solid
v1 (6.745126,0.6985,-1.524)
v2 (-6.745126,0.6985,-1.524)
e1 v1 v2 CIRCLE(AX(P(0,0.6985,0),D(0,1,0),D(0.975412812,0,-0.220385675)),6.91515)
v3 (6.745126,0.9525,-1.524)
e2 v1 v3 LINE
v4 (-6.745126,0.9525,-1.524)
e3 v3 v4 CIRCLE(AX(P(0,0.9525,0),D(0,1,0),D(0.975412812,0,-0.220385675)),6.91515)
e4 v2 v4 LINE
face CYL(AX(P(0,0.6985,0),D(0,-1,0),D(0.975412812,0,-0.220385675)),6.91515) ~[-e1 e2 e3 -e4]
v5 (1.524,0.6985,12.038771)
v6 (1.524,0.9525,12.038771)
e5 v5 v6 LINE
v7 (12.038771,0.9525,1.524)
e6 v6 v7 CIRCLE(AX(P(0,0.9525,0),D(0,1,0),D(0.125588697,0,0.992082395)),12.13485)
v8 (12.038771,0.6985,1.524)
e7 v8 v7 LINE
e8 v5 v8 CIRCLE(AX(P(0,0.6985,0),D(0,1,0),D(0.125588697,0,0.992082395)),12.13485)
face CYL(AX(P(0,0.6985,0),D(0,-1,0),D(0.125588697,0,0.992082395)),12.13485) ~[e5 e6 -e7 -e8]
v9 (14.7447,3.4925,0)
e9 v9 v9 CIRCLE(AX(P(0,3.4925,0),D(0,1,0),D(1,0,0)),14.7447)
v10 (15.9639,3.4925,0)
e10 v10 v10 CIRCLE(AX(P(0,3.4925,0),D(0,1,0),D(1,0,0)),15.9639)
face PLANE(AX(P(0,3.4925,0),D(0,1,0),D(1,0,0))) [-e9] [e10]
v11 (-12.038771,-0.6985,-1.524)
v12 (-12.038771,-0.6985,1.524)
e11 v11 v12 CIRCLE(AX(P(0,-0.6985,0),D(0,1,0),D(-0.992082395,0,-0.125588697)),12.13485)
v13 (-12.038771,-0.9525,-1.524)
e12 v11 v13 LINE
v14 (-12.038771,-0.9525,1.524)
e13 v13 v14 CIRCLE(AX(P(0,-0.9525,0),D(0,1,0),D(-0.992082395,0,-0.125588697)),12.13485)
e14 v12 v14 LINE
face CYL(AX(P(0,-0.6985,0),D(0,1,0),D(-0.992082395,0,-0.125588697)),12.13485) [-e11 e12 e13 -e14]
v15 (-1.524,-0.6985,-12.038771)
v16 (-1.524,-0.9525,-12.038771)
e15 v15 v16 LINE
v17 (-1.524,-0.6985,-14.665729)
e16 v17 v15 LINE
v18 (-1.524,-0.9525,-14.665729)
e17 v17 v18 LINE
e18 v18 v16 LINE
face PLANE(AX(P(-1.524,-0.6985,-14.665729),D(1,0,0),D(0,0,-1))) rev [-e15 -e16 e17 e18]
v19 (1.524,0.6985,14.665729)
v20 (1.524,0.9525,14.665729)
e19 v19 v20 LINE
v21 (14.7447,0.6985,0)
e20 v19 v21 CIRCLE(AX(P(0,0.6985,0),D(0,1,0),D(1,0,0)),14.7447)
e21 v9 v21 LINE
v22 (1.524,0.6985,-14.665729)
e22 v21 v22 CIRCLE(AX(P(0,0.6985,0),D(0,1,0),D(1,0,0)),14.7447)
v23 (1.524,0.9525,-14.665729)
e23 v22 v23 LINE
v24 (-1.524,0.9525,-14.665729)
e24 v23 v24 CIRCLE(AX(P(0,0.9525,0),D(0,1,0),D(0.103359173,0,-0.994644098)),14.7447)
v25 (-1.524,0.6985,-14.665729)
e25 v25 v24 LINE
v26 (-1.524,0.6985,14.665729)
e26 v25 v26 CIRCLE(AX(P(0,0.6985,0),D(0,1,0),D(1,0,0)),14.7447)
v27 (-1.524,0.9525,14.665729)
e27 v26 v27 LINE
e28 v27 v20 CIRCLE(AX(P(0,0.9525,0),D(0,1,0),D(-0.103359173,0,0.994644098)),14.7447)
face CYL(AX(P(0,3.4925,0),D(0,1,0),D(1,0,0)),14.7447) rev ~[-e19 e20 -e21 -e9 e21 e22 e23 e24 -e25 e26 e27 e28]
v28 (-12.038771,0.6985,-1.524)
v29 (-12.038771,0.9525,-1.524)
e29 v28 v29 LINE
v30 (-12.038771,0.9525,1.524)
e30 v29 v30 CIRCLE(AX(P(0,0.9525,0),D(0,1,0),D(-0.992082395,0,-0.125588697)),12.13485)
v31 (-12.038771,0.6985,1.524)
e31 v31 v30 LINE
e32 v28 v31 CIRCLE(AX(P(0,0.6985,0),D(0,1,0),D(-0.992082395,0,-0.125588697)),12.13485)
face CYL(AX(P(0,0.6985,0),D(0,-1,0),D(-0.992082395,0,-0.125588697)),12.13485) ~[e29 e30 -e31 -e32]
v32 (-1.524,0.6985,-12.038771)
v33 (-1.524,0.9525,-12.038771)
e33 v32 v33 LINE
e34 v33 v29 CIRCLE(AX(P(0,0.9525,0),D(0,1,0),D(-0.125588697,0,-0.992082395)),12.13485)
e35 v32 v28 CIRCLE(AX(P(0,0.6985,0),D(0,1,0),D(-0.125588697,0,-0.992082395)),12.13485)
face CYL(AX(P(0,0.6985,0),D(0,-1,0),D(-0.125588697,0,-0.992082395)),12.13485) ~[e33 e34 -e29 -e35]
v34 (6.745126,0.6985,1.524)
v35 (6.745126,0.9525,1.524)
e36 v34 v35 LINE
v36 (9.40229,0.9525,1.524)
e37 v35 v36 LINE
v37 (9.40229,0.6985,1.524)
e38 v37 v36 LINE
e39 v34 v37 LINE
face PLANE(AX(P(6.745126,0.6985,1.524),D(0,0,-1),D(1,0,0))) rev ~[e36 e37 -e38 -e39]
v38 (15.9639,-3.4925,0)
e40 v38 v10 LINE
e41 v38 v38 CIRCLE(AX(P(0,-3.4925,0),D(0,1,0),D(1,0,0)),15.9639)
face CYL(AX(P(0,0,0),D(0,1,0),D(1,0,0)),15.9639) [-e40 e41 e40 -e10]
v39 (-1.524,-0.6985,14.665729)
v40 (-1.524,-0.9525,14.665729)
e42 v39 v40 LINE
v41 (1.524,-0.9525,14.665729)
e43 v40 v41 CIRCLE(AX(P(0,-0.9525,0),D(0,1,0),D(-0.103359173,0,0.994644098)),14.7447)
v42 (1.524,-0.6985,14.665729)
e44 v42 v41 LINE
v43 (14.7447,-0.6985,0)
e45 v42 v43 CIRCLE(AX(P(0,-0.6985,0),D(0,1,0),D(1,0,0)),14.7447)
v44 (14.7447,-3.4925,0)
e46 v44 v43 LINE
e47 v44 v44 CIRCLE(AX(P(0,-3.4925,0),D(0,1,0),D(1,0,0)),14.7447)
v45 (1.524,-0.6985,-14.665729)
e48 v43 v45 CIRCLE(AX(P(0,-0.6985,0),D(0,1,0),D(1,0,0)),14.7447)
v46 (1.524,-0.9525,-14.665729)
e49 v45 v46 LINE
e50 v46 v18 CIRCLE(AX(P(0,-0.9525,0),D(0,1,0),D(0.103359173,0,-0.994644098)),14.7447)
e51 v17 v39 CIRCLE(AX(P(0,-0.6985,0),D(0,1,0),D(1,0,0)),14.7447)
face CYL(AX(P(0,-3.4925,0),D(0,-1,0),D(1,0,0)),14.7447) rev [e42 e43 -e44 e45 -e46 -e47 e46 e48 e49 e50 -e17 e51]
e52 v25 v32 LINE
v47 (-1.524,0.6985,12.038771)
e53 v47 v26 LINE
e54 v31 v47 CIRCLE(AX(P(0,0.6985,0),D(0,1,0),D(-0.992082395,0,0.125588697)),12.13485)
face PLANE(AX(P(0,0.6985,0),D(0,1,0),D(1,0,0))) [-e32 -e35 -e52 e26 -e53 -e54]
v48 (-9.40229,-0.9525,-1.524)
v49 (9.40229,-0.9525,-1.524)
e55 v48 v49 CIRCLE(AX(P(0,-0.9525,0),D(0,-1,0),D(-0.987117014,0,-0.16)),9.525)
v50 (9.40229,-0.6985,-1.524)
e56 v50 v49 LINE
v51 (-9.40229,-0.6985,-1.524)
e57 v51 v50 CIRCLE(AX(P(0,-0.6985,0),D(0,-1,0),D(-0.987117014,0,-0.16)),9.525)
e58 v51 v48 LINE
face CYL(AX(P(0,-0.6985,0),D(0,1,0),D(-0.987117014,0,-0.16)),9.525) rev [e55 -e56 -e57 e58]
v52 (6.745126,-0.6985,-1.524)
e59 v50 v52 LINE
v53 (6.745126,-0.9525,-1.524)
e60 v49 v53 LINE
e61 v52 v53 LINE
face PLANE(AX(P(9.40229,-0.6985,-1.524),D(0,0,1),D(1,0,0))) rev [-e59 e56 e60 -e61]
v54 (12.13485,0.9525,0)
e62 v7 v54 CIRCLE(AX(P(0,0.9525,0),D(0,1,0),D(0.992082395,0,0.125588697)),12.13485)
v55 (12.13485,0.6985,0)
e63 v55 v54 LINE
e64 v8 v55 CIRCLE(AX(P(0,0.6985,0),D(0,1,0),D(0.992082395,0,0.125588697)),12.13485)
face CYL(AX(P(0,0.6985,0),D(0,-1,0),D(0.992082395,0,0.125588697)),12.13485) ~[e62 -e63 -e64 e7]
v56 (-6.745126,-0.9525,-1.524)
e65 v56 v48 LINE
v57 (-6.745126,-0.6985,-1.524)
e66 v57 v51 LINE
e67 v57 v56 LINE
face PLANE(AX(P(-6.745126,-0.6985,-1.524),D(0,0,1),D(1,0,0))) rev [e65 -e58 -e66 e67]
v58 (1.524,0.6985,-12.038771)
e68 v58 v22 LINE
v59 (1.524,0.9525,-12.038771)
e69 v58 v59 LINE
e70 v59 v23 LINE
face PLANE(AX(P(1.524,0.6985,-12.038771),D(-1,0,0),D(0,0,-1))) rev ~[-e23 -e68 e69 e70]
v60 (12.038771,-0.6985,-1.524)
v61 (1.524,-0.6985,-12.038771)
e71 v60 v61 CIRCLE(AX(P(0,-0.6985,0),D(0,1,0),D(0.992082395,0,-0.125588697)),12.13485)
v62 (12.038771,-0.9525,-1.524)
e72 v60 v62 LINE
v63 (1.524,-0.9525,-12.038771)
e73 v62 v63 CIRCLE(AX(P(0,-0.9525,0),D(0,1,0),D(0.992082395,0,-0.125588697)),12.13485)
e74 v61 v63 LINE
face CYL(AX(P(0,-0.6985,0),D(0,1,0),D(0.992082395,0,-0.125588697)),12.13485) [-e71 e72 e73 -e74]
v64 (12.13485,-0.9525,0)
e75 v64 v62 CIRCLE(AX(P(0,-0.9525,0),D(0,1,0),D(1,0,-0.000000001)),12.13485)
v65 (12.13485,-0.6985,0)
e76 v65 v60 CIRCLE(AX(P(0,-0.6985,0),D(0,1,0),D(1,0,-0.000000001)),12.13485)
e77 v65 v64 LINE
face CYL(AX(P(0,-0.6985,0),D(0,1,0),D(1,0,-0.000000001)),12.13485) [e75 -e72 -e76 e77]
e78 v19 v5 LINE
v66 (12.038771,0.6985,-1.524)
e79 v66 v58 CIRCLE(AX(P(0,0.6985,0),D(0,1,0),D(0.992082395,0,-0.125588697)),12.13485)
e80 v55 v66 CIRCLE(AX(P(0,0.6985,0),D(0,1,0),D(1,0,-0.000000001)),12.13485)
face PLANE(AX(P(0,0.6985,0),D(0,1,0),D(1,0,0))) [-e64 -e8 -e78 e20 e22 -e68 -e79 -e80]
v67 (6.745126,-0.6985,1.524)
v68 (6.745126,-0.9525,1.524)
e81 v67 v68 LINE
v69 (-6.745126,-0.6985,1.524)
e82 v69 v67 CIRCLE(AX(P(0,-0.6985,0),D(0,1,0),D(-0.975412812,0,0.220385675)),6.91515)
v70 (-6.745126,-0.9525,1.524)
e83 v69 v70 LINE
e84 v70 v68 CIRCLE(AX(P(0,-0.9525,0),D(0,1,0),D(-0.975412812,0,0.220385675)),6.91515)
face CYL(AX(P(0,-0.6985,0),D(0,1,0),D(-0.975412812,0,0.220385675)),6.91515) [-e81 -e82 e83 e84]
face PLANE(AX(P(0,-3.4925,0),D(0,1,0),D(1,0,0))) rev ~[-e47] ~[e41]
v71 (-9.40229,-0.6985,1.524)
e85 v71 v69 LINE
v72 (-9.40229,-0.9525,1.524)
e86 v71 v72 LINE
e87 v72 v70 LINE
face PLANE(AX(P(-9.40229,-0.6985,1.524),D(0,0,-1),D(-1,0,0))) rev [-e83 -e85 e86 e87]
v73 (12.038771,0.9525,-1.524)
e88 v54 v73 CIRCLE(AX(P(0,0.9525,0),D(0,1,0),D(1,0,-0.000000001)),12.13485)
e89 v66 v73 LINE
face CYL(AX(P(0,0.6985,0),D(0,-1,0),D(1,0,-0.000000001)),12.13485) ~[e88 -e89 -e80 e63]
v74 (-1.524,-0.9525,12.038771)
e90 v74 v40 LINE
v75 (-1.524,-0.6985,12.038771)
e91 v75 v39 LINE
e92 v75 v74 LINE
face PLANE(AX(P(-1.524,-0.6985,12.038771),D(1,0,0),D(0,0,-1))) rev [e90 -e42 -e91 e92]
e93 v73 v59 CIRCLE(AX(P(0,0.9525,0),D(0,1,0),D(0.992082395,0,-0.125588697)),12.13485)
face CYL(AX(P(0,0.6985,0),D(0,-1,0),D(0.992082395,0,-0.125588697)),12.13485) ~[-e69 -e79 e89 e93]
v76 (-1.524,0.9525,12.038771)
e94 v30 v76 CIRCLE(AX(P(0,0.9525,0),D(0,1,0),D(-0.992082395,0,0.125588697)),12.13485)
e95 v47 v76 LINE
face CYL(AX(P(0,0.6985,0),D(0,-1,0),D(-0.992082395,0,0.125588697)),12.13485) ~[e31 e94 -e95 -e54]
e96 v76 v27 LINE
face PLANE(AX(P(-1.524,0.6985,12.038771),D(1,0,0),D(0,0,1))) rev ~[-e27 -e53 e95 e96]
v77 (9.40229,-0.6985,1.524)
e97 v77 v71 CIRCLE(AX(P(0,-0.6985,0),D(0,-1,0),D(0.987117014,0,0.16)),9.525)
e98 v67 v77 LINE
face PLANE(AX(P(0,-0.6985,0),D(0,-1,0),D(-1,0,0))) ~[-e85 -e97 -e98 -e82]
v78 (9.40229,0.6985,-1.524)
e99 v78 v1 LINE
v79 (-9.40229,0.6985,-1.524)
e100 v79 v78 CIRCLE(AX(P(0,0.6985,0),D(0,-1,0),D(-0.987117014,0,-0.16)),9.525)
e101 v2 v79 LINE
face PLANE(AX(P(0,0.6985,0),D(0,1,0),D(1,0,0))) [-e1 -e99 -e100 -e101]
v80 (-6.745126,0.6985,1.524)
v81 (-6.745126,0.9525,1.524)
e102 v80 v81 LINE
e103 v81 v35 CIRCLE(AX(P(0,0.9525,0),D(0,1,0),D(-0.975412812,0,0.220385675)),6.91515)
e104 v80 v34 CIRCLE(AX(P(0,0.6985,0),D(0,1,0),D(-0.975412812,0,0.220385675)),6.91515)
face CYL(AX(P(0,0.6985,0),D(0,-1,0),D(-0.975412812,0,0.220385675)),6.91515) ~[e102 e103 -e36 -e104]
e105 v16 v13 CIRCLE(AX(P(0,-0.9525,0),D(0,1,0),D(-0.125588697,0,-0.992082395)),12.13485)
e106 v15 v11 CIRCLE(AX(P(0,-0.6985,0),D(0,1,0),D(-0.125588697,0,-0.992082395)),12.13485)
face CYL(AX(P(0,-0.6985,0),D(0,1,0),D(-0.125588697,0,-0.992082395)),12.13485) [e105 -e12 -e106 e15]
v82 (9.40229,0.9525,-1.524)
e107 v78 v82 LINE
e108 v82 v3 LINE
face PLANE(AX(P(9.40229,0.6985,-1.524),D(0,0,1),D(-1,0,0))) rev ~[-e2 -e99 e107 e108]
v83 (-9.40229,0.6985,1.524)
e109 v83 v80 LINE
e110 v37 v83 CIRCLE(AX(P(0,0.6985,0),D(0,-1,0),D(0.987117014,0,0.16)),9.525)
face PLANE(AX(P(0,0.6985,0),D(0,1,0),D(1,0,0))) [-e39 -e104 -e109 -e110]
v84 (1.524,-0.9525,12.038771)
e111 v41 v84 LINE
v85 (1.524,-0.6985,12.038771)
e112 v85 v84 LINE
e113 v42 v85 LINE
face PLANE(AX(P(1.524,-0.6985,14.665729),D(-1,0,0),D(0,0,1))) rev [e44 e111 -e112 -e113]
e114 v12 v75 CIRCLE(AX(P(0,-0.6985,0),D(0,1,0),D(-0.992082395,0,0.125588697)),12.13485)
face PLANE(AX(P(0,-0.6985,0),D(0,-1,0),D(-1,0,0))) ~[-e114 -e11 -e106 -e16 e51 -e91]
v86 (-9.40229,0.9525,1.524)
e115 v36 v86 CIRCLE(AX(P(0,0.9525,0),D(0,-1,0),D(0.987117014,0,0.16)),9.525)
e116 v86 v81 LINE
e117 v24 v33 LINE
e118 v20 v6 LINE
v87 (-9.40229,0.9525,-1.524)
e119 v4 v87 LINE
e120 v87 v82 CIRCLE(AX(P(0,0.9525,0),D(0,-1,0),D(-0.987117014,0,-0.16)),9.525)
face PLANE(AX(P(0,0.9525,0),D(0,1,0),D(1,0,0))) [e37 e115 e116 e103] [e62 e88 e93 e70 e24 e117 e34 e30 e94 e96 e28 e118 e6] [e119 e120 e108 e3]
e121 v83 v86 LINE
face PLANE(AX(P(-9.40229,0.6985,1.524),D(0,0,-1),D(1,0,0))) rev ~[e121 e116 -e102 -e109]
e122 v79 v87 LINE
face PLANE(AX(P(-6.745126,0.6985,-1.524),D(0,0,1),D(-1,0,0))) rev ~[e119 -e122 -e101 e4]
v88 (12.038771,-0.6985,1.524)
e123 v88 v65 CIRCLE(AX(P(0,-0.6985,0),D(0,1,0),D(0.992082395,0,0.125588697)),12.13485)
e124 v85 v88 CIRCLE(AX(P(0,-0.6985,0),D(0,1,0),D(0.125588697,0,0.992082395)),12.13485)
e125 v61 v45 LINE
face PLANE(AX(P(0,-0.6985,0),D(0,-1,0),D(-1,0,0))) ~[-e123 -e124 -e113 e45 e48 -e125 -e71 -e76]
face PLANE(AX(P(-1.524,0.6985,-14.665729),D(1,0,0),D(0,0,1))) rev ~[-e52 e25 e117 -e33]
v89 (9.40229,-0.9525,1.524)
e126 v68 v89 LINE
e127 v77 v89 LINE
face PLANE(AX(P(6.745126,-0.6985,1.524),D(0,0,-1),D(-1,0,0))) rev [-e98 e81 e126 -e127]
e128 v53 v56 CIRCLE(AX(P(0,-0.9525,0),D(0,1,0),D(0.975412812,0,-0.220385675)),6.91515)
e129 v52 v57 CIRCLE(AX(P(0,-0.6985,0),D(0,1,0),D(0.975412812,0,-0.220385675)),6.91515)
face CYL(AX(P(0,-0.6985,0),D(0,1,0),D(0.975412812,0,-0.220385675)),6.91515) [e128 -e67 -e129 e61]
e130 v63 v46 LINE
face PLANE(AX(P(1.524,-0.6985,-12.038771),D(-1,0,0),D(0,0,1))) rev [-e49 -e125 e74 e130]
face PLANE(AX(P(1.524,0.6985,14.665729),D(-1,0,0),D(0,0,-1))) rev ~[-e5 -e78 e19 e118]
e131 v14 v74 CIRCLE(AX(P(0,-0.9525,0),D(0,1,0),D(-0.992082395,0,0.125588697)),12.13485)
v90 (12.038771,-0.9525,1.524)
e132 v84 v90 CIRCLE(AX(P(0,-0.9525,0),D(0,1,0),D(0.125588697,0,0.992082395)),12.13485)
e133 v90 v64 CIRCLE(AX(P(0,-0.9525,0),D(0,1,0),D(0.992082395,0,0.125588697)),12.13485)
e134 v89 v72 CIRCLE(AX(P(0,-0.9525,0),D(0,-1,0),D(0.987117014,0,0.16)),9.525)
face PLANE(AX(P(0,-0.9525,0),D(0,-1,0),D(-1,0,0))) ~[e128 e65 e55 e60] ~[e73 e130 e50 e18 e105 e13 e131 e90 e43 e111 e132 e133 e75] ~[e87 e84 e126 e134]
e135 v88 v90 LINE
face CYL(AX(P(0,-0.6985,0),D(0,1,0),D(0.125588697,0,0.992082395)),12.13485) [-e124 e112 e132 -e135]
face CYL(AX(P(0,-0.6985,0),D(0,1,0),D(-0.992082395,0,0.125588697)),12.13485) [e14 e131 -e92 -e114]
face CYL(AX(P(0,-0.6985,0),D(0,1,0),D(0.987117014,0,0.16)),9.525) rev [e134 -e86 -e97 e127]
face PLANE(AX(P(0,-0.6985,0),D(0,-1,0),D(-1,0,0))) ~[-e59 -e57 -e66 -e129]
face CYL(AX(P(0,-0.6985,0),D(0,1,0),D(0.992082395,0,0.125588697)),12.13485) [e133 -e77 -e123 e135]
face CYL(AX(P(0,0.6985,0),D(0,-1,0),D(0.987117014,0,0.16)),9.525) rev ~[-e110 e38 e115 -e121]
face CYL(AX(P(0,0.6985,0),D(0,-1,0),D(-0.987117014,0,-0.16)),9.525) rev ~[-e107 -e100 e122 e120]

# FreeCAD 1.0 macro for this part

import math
import FreeCAD as App
import Part
import Sketcher
Q = App.Units.Quantity

doc = App.newDocument("Part")
body = doc.addObject("PartDesign::Body", "Body")

sketch1 = doc.addObject("Sketcher::SketchObject", "Sketch")
body.addObject(sketch1)
sketch1.AttachmentSupport = (doc.XZ_Plane, [""])
sketch1.MapMode = "FlatFace"
sketch1.addGeometry(Part.Circle(App.Vector(0, 0, 0), App.Vector(0, 0, 1), 16), False)
sketch1.addConstraint([
    Sketcher.Constraint("Coincident", 0, 3, -1, 1),
    Sketcher.Constraint("Diameter", 0, Q("1.257 in")),
])
pad1 = doc.addObject("PartDesign::Pad", "Pad")
body.addObject(pad1)
pad1.Profile = sketch1
pad1.Length = Q("0.275 in")
pad1.Midplane = True

sketch2 = doc.addObject("Sketcher::SketchObject", "Sketch001")
body.addObject(sketch2)
sketch2.AttachmentSupport = (doc.XZ_Plane, [""])
sketch2.MapMode = "FlatFace"
sketch2.AttachmentOffset = App.Placement(App.Vector(0, 0, -0.1375 * 25.4), App.Rotation())
sketch2.addGeometry(Part.Circle(App.Vector(0, 0, 0), App.Vector(0, 0, 1), 15), False)
sketch2.addConstraint([
    Sketcher.Constraint("Coincident", 0, 3, -1, 1),
    Sketcher.Constraint("Diameter", 0, Q("1.161 in")),
])
pocket1 = doc.addObject("PartDesign::Pocket", "Pocket")
body.addObject(pocket1)
pocket1.Profile = sketch2
pocket1.Length = Q("0.11 in")
pocket1.Reversed = True

sketch3 = doc.addObject("Sketcher::SketchObject", "Sketch002")
body.addObject(sketch3)
sketch3.AttachmentSupport = (doc.XZ_Plane, [""])
sketch3.MapMode = "FlatFace"
sketch3.AttachmentOffset = App.Placement(App.Vector(0, 0, -0.0275 * 25.4), App.Rotation())
sketch3.addGeometry([
    Part.ArcOfCircle(Part.Circle(App.Vector(0, 0, 0), App.Vector(0, 0, 1), 12.1), math.radians(97), math.radians(173)),
    Part.LineSegment(App.Vector(-1.5, 12, 0), App.Vector(-1.5, 14.7, 0)),
    Part.ArcOfCircle(Part.Circle(App.Vector(0, 0, 0), App.Vector(0, 0, 1), 14.7), math.radians(84.07), math.radians(95.93)),
    Part.LineSegment(App.Vector(1.5, 14.7, 0), App.Vector(1.5, 12, 0)),
    Part.ArcOfCircle(Part.Circle(App.Vector(0, 0, 0), App.Vector(0, 0, 1), 12.1), math.radians(7), math.radians(83)),
    Part.ArcOfCircle(Part.Circle(App.Vector(0, 0, 0), App.Vector(0, 0, 1), 12.1), math.radians(0), math.radians(7.21)),
    Part.ArcOfCircle(Part.Circle(App.Vector(0, 0, 0), App.Vector(0, 0, 1), 12.1), math.radians(-7.21), math.radians(0)),
    Part.ArcOfCircle(Part.Circle(App.Vector(0, 0, 0), App.Vector(0, 0, 1), 12.1), math.radians(-83), math.radians(-7)),
    Part.LineSegment(App.Vector(1.5, -12, 0), App.Vector(1.5, -14.7, 0)),
    Part.ArcOfCircle(Part.Circle(App.Vector(0, 0, 0), App.Vector(0, 0, 1), 14.7), math.radians(-95.93), math.radians(-84.07)),
    Part.LineSegment(App.Vector(-1.5, -14.7, 0), App.Vector(-1.5, -12, 0)),
    Part.ArcOfCircle(Part.Circle(App.Vector(0, 0, 0), App.Vector(0, 0, 1), 12.1), math.radians(-173), math.radians(-97)),
    Part.ArcOfCircle(Part.Circle(App.Vector(0, 0, 0), App.Vector(0, 0, 1), 12.1), math.radians(172.79), math.radians(187.21)),
    Part.LineSegment(App.Vector(-9.4, 1.5, 0), App.Vector(-6.7, 1.5, 0)),
    Part.ArcOfCircle(Part.Circle(App.Vector(0, 0, 0), App.Vector(0, 0, 1), 6.9), math.radians(13), math.radians(167)),
    Part.LineSegment(App.Vector(6.7, 1.5, 0), App.Vector(9.4, 1.5, 0)),
    Part.ArcOfCircle(Part.Circle(App.Vector(0, 0, 0), App.Vector(0, 0, 1), 9.5), math.radians(9), math.radians(171)),
    Part.ArcOfCircle(Part.Circle(App.Vector(0, 0, 0), App.Vector(0, 0, 1), 6.9), math.radians(-167), math.radians(-13)),
    Part.LineSegment(App.Vector(-6.7, -1.5, 0), App.Vector(-9.4, -1.5, 0)),
    Part.ArcOfCircle(Part.Circle(App.Vector(0, 0, 0), App.Vector(0, 0, 1), 9.5), math.radians(-171), math.radians(-9)),
    Part.LineSegment(App.Vector(9.4, -1.5, 0), App.Vector(6.7, -1.5, 0)),
], False)
sketch3.addConstraint([
    Sketcher.Constraint("Coincident", 0, 1, 1, 1),
    Sketcher.Constraint("Coincident", 1, 2, 2, 2),
    Sketcher.Constraint("Coincident", 2, 1, 3, 1),
    Sketcher.Constraint("Coincident", 3, 2, 4, 2),
    Sketcher.Constraint("Tangent", 4, 1, 5, 2),
    Sketcher.Constraint("Tangent", 5, 1, 6, 2),
    Sketcher.Constraint("Tangent", 6, 1, 7, 2),
    Sketcher.Constraint("Coincident", 7, 1, 8, 1),
    Sketcher.Constraint("Coincident", 8, 2, 9, 2),
    Sketcher.Constraint("Coincident", 9, 1, 10, 1),
    Sketcher.Constraint("Coincident", 10, 2, 11, 2),
    Sketcher.Constraint("Tangent", 11, 1, 12, 2),
    Sketcher.Constraint("Tangent", 12, 1, 0, 2),
    Sketcher.Constraint("Coincident", 13, 2, 14, 2),
    Sketcher.Constraint("Coincident", 14, 1, 15, 1),
    Sketcher.Constraint("Coincident", 15, 2, 16, 1),
    Sketcher.Constraint("Coincident", 16, 2, 13, 1),
    Sketcher.Constraint("Coincident", 17, 1, 18, 1),
    Sketcher.Constraint("Coincident", 18, 2, 19, 1),
    Sketcher.Constraint("Coincident", 19, 2, 20, 1),
    Sketcher.Constraint("Coincident", 20, 2, 17, 2),
    Sketcher.Constraint("Vertical", 1),
    Sketcher.Constraint("Vertical", 3),
    Sketcher.Constraint("Vertical", 8),
    Sketcher.Constraint("Vertical", 10),
    Sketcher.Constraint("Horizontal", 13),
    Sketcher.Constraint("Horizontal", 15),
    Sketcher.Constraint("Horizontal", 18),
    Sketcher.Constraint("Horizontal", 20),
    Sketcher.Constraint("Coincident", 0, 3, -1, 1),
    Sketcher.Constraint("Coincident", 2, 3, -1, 1),
    Sketcher.Constraint("Coincident", 4, 3, -1, 1),
    Sketcher.Constraint("Coincident", 6, 3, -1, 1),
    Sketcher.Constraint("Coincident", 9, 3, -1, 1),
    Sketcher.Constraint("Coincident", 11, 3, -1, 1),
    Sketcher.Constraint("Coincident", 14, 3, -1, 1),
    Sketcher.Constraint("Coincident", 16, 3, -1, 1),
    Sketcher.Constraint("Coincident", 17, 3, -1, 1),
    Sketcher.Constraint("Coincident", 19, 3, -1, 1),
    Sketcher.Constraint("Equal", 0, 4),
    Sketcher.Constraint("Equal", 6, 7),
    Sketcher.Constraint("Equal", 2, 9),
    Sketcher.Constraint("Equal", 14, 17),
    Sketcher.Constraint("Equal", 16, 19),
    Sketcher.Constraint("PointOnObject", 5, 1, -1),
    Sketcher.Constraint("Horizontal", 1, 2, 2, 1),
    Sketcher.Constraint("Horizontal", 8, 2, 9, 1),
    Sketcher.Constraint("Horizontal", 6, 1, 11, 1),
    Sketcher.Constraint("Horizontal", 4, 1, 12, 1),
    Sketcher.Constraint("Horizontal", 12, 1, 13, 2),
    Sketcher.Constraint("Horizontal", 13, 2, 14, 1),
    Sketcher.Constraint("Horizontal", 11, 1, 17, 1),
    Sketcher.Constraint("Horizontal", 18, 2, 19, 2),
    Sketcher.Constraint("Vertical", 4, 1, 6, 1),
    Sketcher.Constraint("Vertical", 3, 2, 7, 1),
    Sketcher.Constraint("Radius", 16, Q("0.375 in")),
    Sketcher.Constraint("Radius", 2, Q("0.5805 in")),
    Sketcher.Constraint("DistanceX", 0, 1, -1, 1, Q("0.06 in")),
    Sketcher.Constraint("DistanceY", -1, 1, 4, 1, Q("0.06 in")),
    Sketcher.Constraint("Radius", 0, 12.13485),
    Sketcher.Constraint("Radius", 14, 6.91515),
])
pad2 = doc.addObject("PartDesign::Pad", "Pad001")
body.addObject(pad2)
pad2.Profile = sketch3
pad2.Length = Q("0.01 in")
pad2.Reversed = True
doc.recompute()

mirrored = doc.addObject("PartDesign::Mirrored", "Mirrored")
body.addObject(mirrored)
mirrored.Originals = [pocket1, pad2]
mirrored.MirrorPlane = (doc.XZ_Plane, [""])
body.Tip = mirrored

doc.recompute()
